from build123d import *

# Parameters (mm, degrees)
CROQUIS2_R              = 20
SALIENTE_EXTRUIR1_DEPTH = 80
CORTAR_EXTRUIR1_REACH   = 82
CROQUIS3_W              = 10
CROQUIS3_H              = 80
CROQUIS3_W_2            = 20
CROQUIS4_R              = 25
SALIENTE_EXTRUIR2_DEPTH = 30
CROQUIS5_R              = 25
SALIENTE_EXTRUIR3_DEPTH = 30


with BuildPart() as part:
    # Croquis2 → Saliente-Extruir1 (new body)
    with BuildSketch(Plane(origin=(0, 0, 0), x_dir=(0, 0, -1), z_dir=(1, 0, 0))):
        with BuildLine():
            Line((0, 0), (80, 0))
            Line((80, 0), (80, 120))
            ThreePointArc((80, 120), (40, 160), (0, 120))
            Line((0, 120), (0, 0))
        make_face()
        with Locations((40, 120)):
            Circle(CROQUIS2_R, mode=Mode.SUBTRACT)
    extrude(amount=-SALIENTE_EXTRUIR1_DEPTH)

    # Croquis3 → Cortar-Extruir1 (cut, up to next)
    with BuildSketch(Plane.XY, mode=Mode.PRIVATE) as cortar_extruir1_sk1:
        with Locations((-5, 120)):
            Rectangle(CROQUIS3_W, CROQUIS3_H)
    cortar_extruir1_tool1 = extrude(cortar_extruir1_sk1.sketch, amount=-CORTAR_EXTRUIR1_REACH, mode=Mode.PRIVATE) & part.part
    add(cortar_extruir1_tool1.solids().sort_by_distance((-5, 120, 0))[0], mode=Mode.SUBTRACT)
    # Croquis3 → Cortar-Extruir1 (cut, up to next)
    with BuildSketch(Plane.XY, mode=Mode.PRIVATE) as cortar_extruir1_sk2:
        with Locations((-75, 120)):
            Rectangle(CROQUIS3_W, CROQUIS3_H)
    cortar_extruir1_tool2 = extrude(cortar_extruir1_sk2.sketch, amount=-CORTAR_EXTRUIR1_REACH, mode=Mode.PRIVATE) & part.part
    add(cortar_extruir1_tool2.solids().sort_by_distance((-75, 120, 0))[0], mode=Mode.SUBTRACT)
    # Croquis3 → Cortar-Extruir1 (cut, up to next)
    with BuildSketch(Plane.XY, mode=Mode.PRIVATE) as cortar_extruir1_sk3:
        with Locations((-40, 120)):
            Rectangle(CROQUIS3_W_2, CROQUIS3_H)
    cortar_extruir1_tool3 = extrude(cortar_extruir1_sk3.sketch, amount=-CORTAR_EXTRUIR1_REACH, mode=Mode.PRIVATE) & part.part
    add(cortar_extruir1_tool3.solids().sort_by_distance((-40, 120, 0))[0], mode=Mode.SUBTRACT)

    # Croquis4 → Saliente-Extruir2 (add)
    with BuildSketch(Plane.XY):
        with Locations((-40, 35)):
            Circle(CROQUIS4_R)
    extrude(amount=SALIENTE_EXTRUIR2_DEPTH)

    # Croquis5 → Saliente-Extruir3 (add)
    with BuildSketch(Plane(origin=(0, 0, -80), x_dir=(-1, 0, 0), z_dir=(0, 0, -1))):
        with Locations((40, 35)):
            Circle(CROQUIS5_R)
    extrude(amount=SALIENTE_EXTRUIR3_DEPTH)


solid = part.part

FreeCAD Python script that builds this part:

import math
import FreeCAD as App
import Part
import Sketcher

V = App.Vector
Q = App.Units.Quantity


def add_polygon(sketch, points):
    """Adds a closed chain of lines whose ends are joined by coincident constraints."""
    first, n = sketch.GeometryCount, len(points)
    for a, b in zip(points, points[1:] + points[:1]):
        sketch.addGeometry(Part.LineSegment(App.Vector(*a, 0), App.Vector(*b, 0)), False)
    for i in range(n):
        sketch.addConstraint(Sketcher.Constraint("Coincident", first + i, 2, first + (i + 1) % n, 1))

doc = App.newDocument("Part")
params = doc.addObject("Spreadsheet::Sheet", "Params")
for row, (alias, value) in enumerate([
    ("sketch1_diameter", "40 mm"),
    ("sketch1_radius", "40 mm"),
    ("sketch1_width", "120 mm"),
    ("pad1_length", "80 mm"),
    ("sketch2_width", "10 mm"),
    ("sketch2_height", "80 mm"),
    ("sketch3_width", "10 mm"),
    ("sketch3_height", "80 mm"),
    ("pocket2_length", "80 mm"),
    ("sketch4_width", "20 mm"),
    ("sketch4_height", "80 mm"),
    ("sketch5_diameter", "50 mm"),
    ("pad2_length", "30 mm"),
    ("sketch6_diameter", "50 mm"),
    ("pad3_length", "30 mm"),
], start=1):
    params.set(f"A{row}", alias)
    params.set(f"B{row}", "=" + value)
    params.setAlias(f"B{row}", alias)

body = doc.addObject("PartDesign::Body", "Body")

# Sketch on YZ plane
sketch1 = body.newObject("Sketcher::SketchObject", "Sketch")
sketch1.AttachmentSupport = (doc.getObject("YZ_Plane"), [""])
sketch1.MapMode = "FlatFace"
sketch1.addGeometry([
    Part.LineSegment(V(0, 0, 0), V(0, -80, 0)),  # 0
    Part.LineSegment(V(0, -80, 0), V(120, -80, 0)),  # 1
    Part.ArcOfCircle(Part.Circle(V(120, -40, 0), V(0, 0, 1), 40), math.radians(-90), math.radians(90)),  # 2
    Part.LineSegment(V(120, 0, 0), V(0, 0, 0)),  # 3
    Part.Circle(V(120, -40, 0), V(0, 0, 1), 20),  # 4
], False)
sketch1.addConstraint([
    Sketcher.Constraint("Coincident", 0, 2, 1, 1),
    Sketcher.Constraint("Tangent", 1, 2, 2, 1),
    Sketcher.Constraint("Tangent", 2, 2, 3, 1),
    Sketcher.Constraint("Coincident", 3, 2, 0, 1),
    Sketcher.Constraint("Vertical", 0),
    Sketcher.Constraint("Horizontal", 1),
    Sketcher.Constraint("Horizontal", 3),
    Sketcher.Constraint("Coincident", 3, 2, -1, 1),
    Sketcher.Constraint("Coincident", 4, 3, 2, 3),
    Sketcher.Constraint("Diameter", 4, Q("40 mm")),
    Sketcher.Constraint("Radius", 2, Q("40 mm")),
    Sketcher.Constraint("DistanceX", 1, 1, 1, 2, Q("120 mm")),
])
sketch1.setExpression("Constraints[9]", "Params.sketch1_diameter")
sketch1.setExpression("Constraints[10]", "Params.sketch1_radius")
sketch1.setExpression("Constraints[11]", "Params.sketch1_width")
pad1 = body.newObject("PartDesign::Pad", "Pad")
pad1.Profile = sketch1
pad1.setExpression("Length", "Params.pad1_length")
pad1.Reversed = True

# Sketch on XY plane
sketch2 = body.newObject("Sketcher::SketchObject", "Sketch001")
sketch2.AttachmentSupport = (doc.getObject("XY_Plane"), [""])
sketch2.MapMode = "FlatFace"
add_polygon(sketch2, [(-10, 160), (-10, 80), (0, 80), (0, 160)])  # lines 0-3
sketch2.addConstraint([
    Sketcher.Constraint("Vertical", 0),
    Sketcher.Constraint("Horizontal", 1),
    Sketcher.Constraint("Vertical", 2),
    Sketcher.Constraint("Horizontal", 3),
    Sketcher.Constraint("PointOnObject", 1, 2, -2),
    Sketcher.Constraint("DistanceX", 1, 1, 1, 2, Q("10 mm")),
    Sketcher.Constraint("DistanceY", 0, 2, 0, 1, Q("80 mm")),
    Sketcher.Constraint("DistanceY", -1, 1, 0, 2, Q("80 mm")),
])
sketch2.setExpression("Constraints[9]", "Params.sketch2_width")
sketch2.setExpression("Constraints[10]", "Params.sketch2_height")
pocket1 = body.newObject("PartDesign::Pocket", "Pocket")
pocket1.Profile = sketch2
pocket1.Type = "UpToFirst"

# Sketch on XY plane
sketch3 = body.newObject("Sketcher::SketchObject", "Sketch002")
sketch3.AttachmentSupport = (doc.getObject("XY_Plane"), [""])
sketch3.MapMode = "FlatFace"
add_polygon(sketch3, [(-80, 160), (-80, 80), (-70, 80), (-70, 160)])  # lines 0-3
sketch3.addConstraint([
    Sketcher.Constraint("Vertical", 0),
    Sketcher.Constraint("Horizontal", 1),
    Sketcher.Constraint("Vertical", 2),
    Sketcher.Constraint("Horizontal", 3),
    Sketcher.Constraint("DistanceX", 1, 1, 1, 2, Q("10 mm")),
    Sketcher.Constraint("DistanceY", 0, 2, 0, 1, Q("80 mm")),
    Sketcher.Constraint("DistanceX", 0, 2, -1, 1, Q("80 mm")),
    Sketcher.Constraint("DistanceY", -1, 1, 0, 2, Q("80 mm")),
])
sketch3.setExpression("Constraints[8]", "Params.sketch3_width")
sketch3.setExpression("Constraints[9]", "Params.sketch3_height")
pocket2 = body.newObject("PartDesign::Pocket", "Pocket001")
pocket2.Profile = sketch3
pocket2.setExpression("Length", "Params.pocket2_length")

# Sketch on XY plane
sketch4 = body.newObject("Sketcher::SketchObject", "Sketch003")
sketch4.AttachmentSupport = (doc.getObject("XY_Plane"), [""])
sketch4.MapMode = "FlatFace"
add_polygon(sketch4, [(-50, 160), (-50, 80), (-30, 80), (-30, 160)])  # lines 0-3
sketch4.addConstraint([
    Sketcher.Constraint("Vertical", 0),
    Sketcher.Constraint("Horizontal", 1),
    Sketcher.Constraint("Vertical", 2),
    Sketcher.Constraint("Horizontal", 3),
    Sketcher.Constraint("DistanceX", 1, 1, 1, 2, Q("20 mm")),
    Sketcher.Constraint("DistanceY", 0, 2, 0, 1, Q("80 mm")),
    Sketcher.Constraint("DistanceX", 0, 2, -1, 1, Q("50 mm")),
    Sketcher.Constraint("DistanceY", -1, 1, 0, 2, Q("80 mm")),
])
sketch4.setExpression("Constraints[8]", "Params.sketch4_width")
sketch4.setExpression("Constraints[9]", "Params.sketch4_height")
pocket3 = body.newObject("PartDesign::Pocket", "Pocket002")
pocket3.Profile = sketch4
pocket3.Type = "UpToFirst"

# Sketch on XY plane
sketch5 = body.newObject("Sketcher::SketchObject", "Sketch004")
sketch5.AttachmentSupport = (doc.getObject("XY_Plane"), [""])
sketch5.MapMode = "FlatFace"
sketch5.addGeometry(Part.Circle(V(-40, 35, 0), V(0, 0, 1), 25), False)
sketch5.addConstraint([
    Sketcher.Constraint("Diameter", 0, Q("50 mm")),
    Sketcher.Constraint("DistanceX", 0, 3, -1, 1, Q("40 mm")),
    Sketcher.Constraint("DistanceY", -1, 1, 0, 3, Q("35 mm")),
])
sketch5.setExpression("Constraints[0]", "Params.sketch5_diameter")
pad2 = body.newObject("PartDesign::Pad", "Pad001")
pad2.Profile = sketch5
pad2.setExpression("Length", "Params.pad2_length")

# Sketch on XY plane
sketch6 = body.newObject("Sketcher::SketchObject", "Sketch005")
sketch6.AttachmentSupport = (doc.getObject("XY_Plane"), [""])
sketch6.MapMode = "FlatFace"
sketch6.AttachmentOffset = App.Placement(V(0, 0, -80), App.Rotation())
sketch6.addGeometry(Part.Circle(V(-40, 35, 0), V(0, 0, 1), 25), False)
sketch6.addConstraint([
    Sketcher.Constraint("Diameter", 0, Q("50 mm")),
    Sketcher.Constraint("DistanceX", 0, 3, -1, 1, Q("40 mm")),
    Sketcher.Constraint("DistanceY", -1, 1, 0, 3, Q("35 mm")),
])
sketch6.setExpression("Constraints[0]", "Params.sketch6_diameter")
pad3 = body.newObject("PartDesign::Pad", "Pad002")
pad3.Profile = sketch6
pad3.setExpression("Length", "Params.pad3_length")
pad3.Reversed = True

doc.recompute()
